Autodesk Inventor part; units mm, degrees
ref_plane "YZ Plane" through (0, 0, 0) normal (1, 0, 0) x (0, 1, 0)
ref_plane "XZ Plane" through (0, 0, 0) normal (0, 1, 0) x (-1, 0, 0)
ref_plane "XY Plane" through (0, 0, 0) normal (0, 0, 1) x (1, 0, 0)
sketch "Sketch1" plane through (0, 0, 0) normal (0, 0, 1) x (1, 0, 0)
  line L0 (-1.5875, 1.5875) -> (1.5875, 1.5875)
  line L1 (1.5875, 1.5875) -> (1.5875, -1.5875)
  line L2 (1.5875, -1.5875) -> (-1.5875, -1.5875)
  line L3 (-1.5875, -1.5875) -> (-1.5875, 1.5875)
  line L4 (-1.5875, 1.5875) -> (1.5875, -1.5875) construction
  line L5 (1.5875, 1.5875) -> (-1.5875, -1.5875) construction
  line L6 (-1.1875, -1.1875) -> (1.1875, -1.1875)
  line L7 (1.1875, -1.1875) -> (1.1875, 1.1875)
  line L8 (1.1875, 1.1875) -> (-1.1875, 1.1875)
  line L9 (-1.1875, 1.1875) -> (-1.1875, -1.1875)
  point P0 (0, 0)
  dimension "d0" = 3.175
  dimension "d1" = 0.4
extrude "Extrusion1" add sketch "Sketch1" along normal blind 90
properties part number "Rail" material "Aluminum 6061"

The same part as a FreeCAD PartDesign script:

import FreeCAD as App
import Part
import Sketcher
from FreeCAD import Vector
Q = App.Units.Quantity


def add_polygon(sketch, points):
    """Adds a closed chain of lines whose ends are joined by coincident constraints."""
    first, n = sketch.GeometryCount, len(points)
    for a, b in zip(points, points[1:] + points[:1]):
        sketch.addGeometry(Part.LineSegment(App.Vector(*a, 0), App.Vector(*b, 0)), False)
    for i in range(n):
        sketch.addConstraint(Sketcher.Constraint("Coincident", first + i, 2, first + (i + 1) % n, 1))

doc = App.newDocument("Part")
body = doc.addObject("PartDesign::Body", "Body")

sketch1 = doc.addObject("Sketcher::SketchObject", "Sketch")
body.addObject(sketch1)
sketch1.AttachmentSupport = (doc.XY_Plane, [""])
sketch1.MapMode = "FlatFace"
add_polygon(sketch1, [(1.5875, 1.5875), (-1.5875, 1.5875), (-1.5875, -1.5875), (1.5875, -1.5875)])
add_polygon(sketch1, [(1.1875, -1.1875), (-1.1875, -1.1875), (-1.1875, 1.1875), (1.1875, 1.1875)])
sketch1.addConstraint([
    Sketcher.Constraint("Horizontal", 0),
    Sketcher.Constraint("Vertical", 1),
    Sketcher.Constraint("Horizontal", 2),
    Sketcher.Constraint("Vertical", 3),
    Sketcher.Constraint("Horizontal", 4),
    Sketcher.Constraint("Vertical", 5),
    Sketcher.Constraint("Horizontal", 6),
    Sketcher.Constraint("Vertical", 7),
    Sketcher.Constraint("Symmetric", 0, 2, 2, 2, -1, 1),
    Sketcher.Constraint("Symmetric", 4, 2, 6, 2, -1, 1),
    Sketcher.Constraint("Equal", 2, 1),
    Sketcher.Constraint("Equal", 6, 5),
    Sketcher.Constraint("DistanceX", 0, 2, 0, 1, Q("0.125 in")),
    Sketcher.Constraint("DistanceX", 1, 2, 4, 2, Q("0.4 mm")),
])
pad1 = doc.addObject("PartDesign::Pad", "Pad")
body.addObject(pad1)
pad1.Profile = sketch1
pad1.Length = Q("3.5433071 in")

doc.recompute()
